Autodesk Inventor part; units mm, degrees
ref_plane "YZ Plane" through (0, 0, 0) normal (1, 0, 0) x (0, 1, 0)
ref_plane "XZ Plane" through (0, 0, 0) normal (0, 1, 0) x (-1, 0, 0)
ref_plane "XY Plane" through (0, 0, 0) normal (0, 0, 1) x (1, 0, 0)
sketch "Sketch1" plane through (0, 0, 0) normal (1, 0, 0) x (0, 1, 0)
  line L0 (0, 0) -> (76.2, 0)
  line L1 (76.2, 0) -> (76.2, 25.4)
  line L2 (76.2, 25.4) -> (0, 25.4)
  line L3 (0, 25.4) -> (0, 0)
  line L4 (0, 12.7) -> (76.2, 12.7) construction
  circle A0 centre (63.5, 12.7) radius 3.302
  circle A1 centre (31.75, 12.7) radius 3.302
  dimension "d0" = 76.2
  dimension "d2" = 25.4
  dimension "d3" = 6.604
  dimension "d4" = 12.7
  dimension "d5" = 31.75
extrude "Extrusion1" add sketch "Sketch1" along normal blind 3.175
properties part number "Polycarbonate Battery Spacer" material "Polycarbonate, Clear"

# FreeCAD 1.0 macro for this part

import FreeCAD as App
import Part
import Sketcher

V = App.Vector
Q = App.Units.Quantity

doc = App.newDocument("Part")
body = doc.addObject("PartDesign::Body", "Body")

sketch1 = body.newObject("Sketcher::SketchObject", "Sketch")
sketch1.AttachmentSupport = (doc.getObject("YZ_Plane"), [""])
sketch1.MapMode = "FlatFace"
sketch1.addGeometry(Part.LineSegment(V(0, 25.4, 0), V(0, 0, 0)), False)
sketch1.addGeometry(Part.LineSegment(V(0, 0, 0), V(76.2, 0, 0)), False)
sketch1.addGeometry(Part.LineSegment(V(76.2, 0, 0), V(76.2, 25.4, 0)), False)
sketch1.addGeometry(Part.LineSegment(V(76.2, 25.4, 0), V(0, 25.4, 0)), False)
sketch1.addGeometry(Part.Circle(V(31.75, 12.7, 0), V(0, 0, 1), 3.302), False)
sketch1.addGeometry(Part.Circle(V(63.5, 12.7, 0), V(0, 0, 1), 3.302), False)
sketch1.addConstraint(Sketcher.Constraint("Coincident", 0, 2, 1, 1))
sketch1.addConstraint(Sketcher.Constraint("Coincident", 1, 2, 2, 1))
sketch1.addConstraint(Sketcher.Constraint("Coincident", 2, 2, 3, 1))
sketch1.addConstraint(Sketcher.Constraint("Coincident", 3, 2, 0, 1))
sketch1.addConstraint(Sketcher.Constraint("Vertical", 0))
sketch1.addConstraint(Sketcher.Constraint("Horizontal", 1))
sketch1.addConstraint(Sketcher.Constraint("Vertical", 2))
sketch1.addConstraint(Sketcher.Constraint("Horizontal", 3))
sketch1.addConstraint(Sketcher.Constraint("Coincident", 0, 2, -1, 1))
sketch1.addConstraint(Sketcher.Constraint("Equal", 4, 5))
sketch1.addConstraint(Sketcher.Constraint("Horizontal", 4, 3, 5, 3))
sketch1.addConstraint(Sketcher.Constraint("Diameter", 4, Q("0.26 in")))
sketch1.addConstraint(Sketcher.Constraint("DistanceX", 1, 1, 1, 2, Q("3 in")))
sketch1.addConstraint(Sketcher.Constraint("DistanceY", 0, 2, 0, 1, Q("1 in")))
sketch1.addConstraint(Sketcher.Constraint("DistanceY", -1, 1, 4, 3, Q("0.5 in")))
sketch1.addConstraint(Sketcher.Constraint("DistanceX", 5, 3, 1, 2, Q("0.5 in")))
sketch1.addConstraint(Sketcher.Constraint("DistanceX", -1, 1, 4, 3, Q("1.25 in")))
pad1 = body.newObject("PartDesign::Pad", "Pad")
pad1.Profile = sketch1
pad1.Length = Q("0.125 in")

doc.recompute()
